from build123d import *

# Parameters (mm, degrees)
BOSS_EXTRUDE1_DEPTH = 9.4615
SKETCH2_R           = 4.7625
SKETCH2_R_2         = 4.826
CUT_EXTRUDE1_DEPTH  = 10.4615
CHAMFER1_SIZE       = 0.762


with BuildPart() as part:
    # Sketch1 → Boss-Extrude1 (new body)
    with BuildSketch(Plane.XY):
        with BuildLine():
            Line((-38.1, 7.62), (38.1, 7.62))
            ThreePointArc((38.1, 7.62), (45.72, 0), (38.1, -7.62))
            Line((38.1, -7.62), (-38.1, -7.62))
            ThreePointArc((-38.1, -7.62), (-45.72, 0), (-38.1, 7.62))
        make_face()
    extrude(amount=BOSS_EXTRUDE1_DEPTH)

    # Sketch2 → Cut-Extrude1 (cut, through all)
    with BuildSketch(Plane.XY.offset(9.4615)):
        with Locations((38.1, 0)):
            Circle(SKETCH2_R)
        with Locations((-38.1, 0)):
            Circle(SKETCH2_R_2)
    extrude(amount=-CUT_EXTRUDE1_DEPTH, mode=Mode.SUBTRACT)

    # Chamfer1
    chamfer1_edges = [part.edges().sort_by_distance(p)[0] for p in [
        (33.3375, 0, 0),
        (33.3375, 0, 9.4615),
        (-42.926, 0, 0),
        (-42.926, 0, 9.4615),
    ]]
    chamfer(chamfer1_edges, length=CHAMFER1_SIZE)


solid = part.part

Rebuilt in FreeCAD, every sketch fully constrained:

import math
import FreeCAD as App
import Part
import Sketcher

V = App.Vector
Q = App.Units.Quantity


def edges_at(feature, points):
    """Names of the edges that pass closest to the given points."""
    edges = feature.Shape.Edges
    near = lambda p: min(range(len(edges)), key=lambda i: edges[i].distToShape(Part.Vertex(*p))[0])
    return sorted({f"Edge{near(p) + 1}" for p in points})

doc = App.newDocument("Part")
body = doc.addObject("PartDesign::Body", "Body")

sketch1 = body.newObject("Sketcher::SketchObject", "Sketch")
sketch1.AttachmentSupport = (doc.getObject("XY_Plane"), [""])
sketch1.MapMode = "FlatFace"
sketch1.addGeometry([
    Part.LineSegment(V(38, 8, 0), V(-38, 8, 0)),
    Part.ArcOfCircle(Part.Circle(V(-38, 0, 0), V(0, 0, 1), 8), math.radians(90), math.radians(270)),
    Part.LineSegment(V(-38, -8, 0), V(38, -8, 0)),
    Part.ArcOfCircle(Part.Circle(V(38, 0, 0), V(0, 0, 1), 8), math.radians(-90), math.radians(90)),
], False)
sketch1.addConstraint([
    Sketcher.Constraint("Tangent", 0, 2, 1, 1),
    Sketcher.Constraint("Tangent", 1, 2, 2, 1),
    Sketcher.Constraint("Tangent", 2, 2, 3, 1),
    Sketcher.Constraint("Tangent", 3, 2, 0, 1),
    Sketcher.Constraint("Horizontal", 0),
    Sketcher.Constraint("Horizontal", 2),
    Sketcher.Constraint("Symmetric", 1, 3, 3, 3, -1, 1),
    Sketcher.Constraint("Radius", 1, Q("0.3 in")),
    Sketcher.Constraint("DistanceX", 0, 2, 0, 1, Q("3 in")),
])
pad1 = body.newObject("PartDesign::Pad", "Pad")
pad1.Profile = sketch1
pad1.Length = Q("0.3725 in")

sketch2 = body.newObject("Sketcher::SketchObject", "Sketch001")
sketch2.AttachmentSupport = (doc.getObject("XY_Plane"), [""])
sketch2.MapMode = "FlatFace"
sketch2.AttachmentOffset = App.Placement(V(0, 0, 0.3725 * 25.4), App.Rotation())
sketch2.addGeometry([
    Part.Circle(V(38.1, 0, 0), V(0, 0, 1), 4.8),
    Part.Circle(V(-38.1, 0, 0), V(0, 0, 1), 4.8),
], False)
sketch2.addConstraint([
    Sketcher.Constraint("Symmetric", 0, 3, 1, 3, -1, 1),
    Sketcher.Constraint("PointOnObject", 0, 3, -1),
    Sketcher.Constraint("Diameter", 1, Q("0.38 in")),
    Sketcher.Constraint("Diameter", 0, Q("0.375 in")),
    Sketcher.Constraint("DistanceX", 1, 3, 0, 3, Q("3 in")),
])
pocket1 = body.newObject("PartDesign::Pocket", "Pocket")
pocket1.Profile = sketch2
pocket1.Type = "ThroughAll"
doc.recompute()

chamfer = body.newObject("PartDesign::Chamfer", "Chamfer")
chamfer.Base = (pocket1, edges_at(pocket1, [
    (33.337, 0, 0),
    (33.337, 0, 9.461),
    (-42.926, 0, 0),
    (-42.926, 0, 9.461),
]))
chamfer.Size = Q("0.03 in")

doc.recompute()
